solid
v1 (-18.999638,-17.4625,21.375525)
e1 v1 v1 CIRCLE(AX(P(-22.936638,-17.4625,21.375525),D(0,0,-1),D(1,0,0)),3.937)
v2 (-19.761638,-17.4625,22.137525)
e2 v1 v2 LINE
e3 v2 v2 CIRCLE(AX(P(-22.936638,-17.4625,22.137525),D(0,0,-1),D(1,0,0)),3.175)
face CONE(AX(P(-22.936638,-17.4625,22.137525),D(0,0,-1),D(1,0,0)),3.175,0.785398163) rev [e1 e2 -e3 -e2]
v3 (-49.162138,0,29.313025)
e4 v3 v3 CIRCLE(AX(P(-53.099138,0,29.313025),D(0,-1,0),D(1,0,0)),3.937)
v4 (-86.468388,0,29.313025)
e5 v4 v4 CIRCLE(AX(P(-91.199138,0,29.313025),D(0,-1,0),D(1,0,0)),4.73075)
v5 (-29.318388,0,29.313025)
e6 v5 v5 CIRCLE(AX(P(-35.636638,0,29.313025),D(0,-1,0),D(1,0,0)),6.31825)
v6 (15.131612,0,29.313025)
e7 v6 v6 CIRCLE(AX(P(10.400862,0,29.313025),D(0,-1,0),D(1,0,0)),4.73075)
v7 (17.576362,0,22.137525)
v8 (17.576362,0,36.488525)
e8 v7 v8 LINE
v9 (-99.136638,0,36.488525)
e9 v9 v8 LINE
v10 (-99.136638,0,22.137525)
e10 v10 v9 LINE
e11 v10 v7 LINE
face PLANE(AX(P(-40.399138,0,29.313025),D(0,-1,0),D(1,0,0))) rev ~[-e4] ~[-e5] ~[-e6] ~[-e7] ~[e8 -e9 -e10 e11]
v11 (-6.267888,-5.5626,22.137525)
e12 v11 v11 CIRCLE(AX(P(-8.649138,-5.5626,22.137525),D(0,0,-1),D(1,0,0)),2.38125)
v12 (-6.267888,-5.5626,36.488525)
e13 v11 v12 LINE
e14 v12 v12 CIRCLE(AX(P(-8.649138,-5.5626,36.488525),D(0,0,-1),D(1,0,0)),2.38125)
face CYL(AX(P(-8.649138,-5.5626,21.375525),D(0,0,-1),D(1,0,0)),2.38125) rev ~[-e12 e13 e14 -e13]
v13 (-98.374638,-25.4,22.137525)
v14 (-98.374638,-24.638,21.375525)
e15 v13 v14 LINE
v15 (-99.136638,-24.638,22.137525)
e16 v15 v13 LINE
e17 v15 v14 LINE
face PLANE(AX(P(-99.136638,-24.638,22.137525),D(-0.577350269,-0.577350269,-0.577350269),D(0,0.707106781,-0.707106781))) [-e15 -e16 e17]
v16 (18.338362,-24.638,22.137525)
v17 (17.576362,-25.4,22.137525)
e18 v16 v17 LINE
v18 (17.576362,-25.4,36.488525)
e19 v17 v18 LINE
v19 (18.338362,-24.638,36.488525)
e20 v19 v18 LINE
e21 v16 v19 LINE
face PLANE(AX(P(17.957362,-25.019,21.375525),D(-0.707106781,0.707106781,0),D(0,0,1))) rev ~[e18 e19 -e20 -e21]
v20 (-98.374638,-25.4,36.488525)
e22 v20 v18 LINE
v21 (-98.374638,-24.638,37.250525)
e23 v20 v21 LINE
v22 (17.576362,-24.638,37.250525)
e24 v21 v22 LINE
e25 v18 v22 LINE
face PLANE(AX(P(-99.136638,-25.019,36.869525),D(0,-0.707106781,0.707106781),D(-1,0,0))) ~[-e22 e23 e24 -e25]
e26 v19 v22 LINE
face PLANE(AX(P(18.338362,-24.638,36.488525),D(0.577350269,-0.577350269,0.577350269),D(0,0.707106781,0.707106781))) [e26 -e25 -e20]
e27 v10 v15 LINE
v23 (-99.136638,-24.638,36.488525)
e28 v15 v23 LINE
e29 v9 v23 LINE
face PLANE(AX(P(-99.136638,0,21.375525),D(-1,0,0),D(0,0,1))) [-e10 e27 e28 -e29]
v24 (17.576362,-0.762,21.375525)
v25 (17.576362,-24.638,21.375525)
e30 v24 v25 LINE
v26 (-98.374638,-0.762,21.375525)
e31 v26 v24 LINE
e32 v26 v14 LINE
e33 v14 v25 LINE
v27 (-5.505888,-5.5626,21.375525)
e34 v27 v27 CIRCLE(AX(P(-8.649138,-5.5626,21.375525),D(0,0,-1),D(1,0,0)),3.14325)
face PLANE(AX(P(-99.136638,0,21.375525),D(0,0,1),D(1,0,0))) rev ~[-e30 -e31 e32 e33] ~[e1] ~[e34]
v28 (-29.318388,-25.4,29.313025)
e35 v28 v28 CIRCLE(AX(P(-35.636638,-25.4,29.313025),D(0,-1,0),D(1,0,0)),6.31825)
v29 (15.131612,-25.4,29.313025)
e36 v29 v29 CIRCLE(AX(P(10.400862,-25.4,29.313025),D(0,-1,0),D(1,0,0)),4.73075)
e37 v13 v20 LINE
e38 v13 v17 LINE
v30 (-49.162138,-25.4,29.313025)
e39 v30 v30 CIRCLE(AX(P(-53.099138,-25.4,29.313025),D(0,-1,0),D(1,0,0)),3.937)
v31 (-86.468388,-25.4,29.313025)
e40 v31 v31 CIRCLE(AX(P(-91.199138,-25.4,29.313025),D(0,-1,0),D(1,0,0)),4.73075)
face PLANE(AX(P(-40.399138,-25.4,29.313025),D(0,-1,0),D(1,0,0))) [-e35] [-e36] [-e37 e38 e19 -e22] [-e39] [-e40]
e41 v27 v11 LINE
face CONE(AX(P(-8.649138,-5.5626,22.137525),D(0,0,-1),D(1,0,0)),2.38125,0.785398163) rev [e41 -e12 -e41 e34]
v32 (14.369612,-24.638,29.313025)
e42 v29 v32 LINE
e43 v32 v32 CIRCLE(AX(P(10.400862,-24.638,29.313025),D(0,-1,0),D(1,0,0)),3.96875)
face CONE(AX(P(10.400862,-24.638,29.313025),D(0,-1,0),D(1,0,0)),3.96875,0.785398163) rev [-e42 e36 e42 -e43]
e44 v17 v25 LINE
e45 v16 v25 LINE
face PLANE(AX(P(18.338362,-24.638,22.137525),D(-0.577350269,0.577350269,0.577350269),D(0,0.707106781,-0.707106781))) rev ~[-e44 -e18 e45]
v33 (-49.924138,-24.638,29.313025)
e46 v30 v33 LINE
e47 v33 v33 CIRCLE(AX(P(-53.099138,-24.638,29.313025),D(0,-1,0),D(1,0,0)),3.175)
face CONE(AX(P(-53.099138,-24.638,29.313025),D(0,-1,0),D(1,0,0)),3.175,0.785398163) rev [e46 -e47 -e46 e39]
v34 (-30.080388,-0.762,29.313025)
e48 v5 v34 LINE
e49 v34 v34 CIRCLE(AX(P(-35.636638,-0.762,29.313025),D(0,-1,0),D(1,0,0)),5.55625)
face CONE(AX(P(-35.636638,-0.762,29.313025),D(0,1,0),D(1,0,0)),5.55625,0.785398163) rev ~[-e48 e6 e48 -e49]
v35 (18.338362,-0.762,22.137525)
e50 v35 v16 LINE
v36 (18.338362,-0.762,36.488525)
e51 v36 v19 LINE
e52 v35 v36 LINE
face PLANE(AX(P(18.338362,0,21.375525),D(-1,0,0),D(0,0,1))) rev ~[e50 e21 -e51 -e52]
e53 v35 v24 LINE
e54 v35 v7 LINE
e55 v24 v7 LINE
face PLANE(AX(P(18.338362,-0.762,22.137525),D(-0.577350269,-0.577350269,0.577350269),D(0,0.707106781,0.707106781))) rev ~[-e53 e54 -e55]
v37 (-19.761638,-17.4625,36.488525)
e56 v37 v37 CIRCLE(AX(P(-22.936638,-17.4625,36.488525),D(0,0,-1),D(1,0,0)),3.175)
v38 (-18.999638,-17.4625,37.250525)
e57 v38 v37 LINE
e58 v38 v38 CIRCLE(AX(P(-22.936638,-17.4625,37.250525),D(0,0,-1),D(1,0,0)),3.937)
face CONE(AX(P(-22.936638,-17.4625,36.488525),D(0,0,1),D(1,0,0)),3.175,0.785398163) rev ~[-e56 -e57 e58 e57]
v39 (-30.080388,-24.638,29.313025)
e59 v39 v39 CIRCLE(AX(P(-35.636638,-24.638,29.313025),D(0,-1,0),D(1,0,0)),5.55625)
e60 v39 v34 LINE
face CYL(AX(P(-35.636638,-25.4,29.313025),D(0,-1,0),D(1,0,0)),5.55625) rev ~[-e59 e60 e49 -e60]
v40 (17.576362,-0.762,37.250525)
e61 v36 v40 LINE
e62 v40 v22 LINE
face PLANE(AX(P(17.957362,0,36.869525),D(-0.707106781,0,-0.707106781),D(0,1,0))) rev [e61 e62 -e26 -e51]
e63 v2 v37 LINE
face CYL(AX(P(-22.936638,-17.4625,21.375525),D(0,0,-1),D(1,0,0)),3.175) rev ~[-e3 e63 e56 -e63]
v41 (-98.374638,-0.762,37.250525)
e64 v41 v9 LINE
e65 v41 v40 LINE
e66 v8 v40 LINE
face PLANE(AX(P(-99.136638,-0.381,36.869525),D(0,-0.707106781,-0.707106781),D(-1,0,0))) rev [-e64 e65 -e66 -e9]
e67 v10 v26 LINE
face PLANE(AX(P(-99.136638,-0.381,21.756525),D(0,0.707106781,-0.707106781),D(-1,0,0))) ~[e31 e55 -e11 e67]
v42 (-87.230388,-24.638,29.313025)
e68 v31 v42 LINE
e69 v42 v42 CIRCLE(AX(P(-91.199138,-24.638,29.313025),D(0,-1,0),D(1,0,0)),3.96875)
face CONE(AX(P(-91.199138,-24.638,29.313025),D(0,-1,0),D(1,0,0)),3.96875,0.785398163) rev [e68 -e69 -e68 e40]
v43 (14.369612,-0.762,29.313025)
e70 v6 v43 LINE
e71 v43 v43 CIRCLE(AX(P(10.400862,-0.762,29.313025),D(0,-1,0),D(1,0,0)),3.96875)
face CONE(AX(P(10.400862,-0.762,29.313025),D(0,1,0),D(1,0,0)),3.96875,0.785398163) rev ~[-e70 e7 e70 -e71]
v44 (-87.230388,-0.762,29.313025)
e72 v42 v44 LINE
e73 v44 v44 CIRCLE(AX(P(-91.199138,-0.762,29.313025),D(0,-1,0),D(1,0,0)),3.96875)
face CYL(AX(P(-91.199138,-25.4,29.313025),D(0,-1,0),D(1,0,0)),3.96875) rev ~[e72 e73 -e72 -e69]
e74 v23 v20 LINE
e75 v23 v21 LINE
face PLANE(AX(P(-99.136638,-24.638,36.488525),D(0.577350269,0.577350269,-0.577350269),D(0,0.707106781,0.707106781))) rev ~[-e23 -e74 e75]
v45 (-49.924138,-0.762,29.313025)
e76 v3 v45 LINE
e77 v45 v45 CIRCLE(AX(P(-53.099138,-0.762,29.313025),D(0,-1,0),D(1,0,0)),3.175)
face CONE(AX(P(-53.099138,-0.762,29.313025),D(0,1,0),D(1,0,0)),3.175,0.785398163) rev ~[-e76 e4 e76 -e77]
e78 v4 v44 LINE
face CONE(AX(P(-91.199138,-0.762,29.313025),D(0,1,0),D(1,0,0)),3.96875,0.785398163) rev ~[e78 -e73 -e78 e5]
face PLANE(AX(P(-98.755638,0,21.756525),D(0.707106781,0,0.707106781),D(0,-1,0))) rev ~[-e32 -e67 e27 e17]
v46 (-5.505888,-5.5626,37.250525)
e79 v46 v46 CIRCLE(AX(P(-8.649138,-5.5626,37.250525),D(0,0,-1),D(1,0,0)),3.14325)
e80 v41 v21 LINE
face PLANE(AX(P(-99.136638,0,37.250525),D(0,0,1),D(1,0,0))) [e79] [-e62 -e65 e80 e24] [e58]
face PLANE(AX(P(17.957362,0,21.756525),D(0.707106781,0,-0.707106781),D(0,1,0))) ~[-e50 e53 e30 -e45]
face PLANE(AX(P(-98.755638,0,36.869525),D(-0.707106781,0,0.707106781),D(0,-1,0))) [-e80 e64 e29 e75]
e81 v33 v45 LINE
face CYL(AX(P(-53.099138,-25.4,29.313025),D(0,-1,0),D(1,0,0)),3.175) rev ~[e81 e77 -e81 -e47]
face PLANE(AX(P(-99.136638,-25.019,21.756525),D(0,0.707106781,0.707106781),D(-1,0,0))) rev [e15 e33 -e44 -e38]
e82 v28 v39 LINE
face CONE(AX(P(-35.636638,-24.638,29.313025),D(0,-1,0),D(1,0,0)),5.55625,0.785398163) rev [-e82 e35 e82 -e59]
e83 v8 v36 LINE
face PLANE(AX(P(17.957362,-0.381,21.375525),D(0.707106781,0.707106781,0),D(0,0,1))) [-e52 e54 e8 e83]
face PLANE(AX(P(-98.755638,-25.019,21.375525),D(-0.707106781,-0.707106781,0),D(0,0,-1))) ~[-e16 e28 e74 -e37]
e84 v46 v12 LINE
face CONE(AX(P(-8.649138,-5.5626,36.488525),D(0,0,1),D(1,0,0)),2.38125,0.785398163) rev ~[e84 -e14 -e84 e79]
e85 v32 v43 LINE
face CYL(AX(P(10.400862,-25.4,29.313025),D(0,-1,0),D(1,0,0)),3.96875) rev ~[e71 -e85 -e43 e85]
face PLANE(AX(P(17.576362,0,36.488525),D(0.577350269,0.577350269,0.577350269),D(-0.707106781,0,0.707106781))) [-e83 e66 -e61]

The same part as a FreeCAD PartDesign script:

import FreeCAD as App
import Part
import Sketcher

V = App.Vector
Q = App.Units.Quantity


def edges_at(feature, points):
    """Names of the edges that pass closest to the given points."""
    edges = feature.Shape.Edges
    near = lambda p: min(range(len(edges)), key=lambda i: edges[i].distToShape(Part.Vertex(*p))[0])
    return sorted({f"Edge{near(p) + 1}" for p in points})


def add_polygon(sketch, points):
    """Adds a closed chain of lines whose ends are joined by coincident constraints."""
    first, n = sketch.GeometryCount, len(points)
    for a, b in zip(points, points[1:] + points[:1]):
        sketch.addGeometry(Part.LineSegment(App.Vector(*a, 0), App.Vector(*b, 0)), False)
    for i in range(n):
        sketch.addConstraint(Sketcher.Constraint("Coincident", first + i, 2, first + (i + 1) % n, 1))

doc = App.newDocument("Part")
body = doc.addObject("PartDesign::Body", "Body")

sketch1 = body.newObject("Sketcher::SketchObject", "Sketch")
sketch1.AttachmentSupport = (doc.getObject("XZ_Plane"), [""])
sketch1.MapMode = "FlatFace"
add_polygon(sketch1, [(-99.136638, 37.250525), (-99.136638, 21.375525), (18.338362, 21.375525), (18.338362, 37.250525)])
sketch1.addConstraint([
    Sketcher.Constraint("Vertical", 0),
    Sketcher.Constraint("Horizontal", 1),
    Sketcher.Constraint("Vertical", 2),
    Sketcher.Constraint("Horizontal", 3),
    Sketcher.Constraint("DistanceX", 1, 1, 1, 2, Q("4.625 in")),
    Sketcher.Constraint("DistanceY", 0, 2, 0, 1, Q("0.625 in")),
    Sketcher.Constraint("DistanceX", 0, 2, -1, 1, Q("99.136638 mm")),
    Sketcher.Constraint("DistanceY", -1, 1, 0, 2, Q("21.375525 mm")),
])
pad1 = body.newObject("PartDesign::Pad", "Pad")
pad1.Profile = sketch1
pad1.Length = Q("1 in")

sketch2 = body.newObject("Sketcher::SketchObject", "Sketch001")
sketch2.AttachmentSupport = (doc.getObject("XZ_Plane"), [""])
sketch2.MapMode = "FlatFace"
sketch2.AttachmentOffset = App.Placement(V(0, 0, 1 * 25.4), App.Rotation())
sketch2.addGeometry([
    Part.Circle(V(-91.199138, 29.313025, 0), V(0, 0, 1), 3.96875),
    Part.Circle(V(-53.099138, 29.313025, 0), V(0, 0, 1), 3.175),
    Part.Circle(V(-35.636638, 29.313025, 0), V(0, 0, 1), 5.55625),
    Part.Circle(V(10.400862, 29.313025, 0), V(0, 0, 1), 3.96875),
], False)
sketch2.addConstraint([
    Sketcher.Constraint("Equal", 0, 3),
    Sketcher.Constraint("Horizontal", 0, 3, 1, 3),
    Sketcher.Constraint("Horizontal", 1, 3, 2, 3),
    Sketcher.Constraint("Horizontal", 2, 3, 3, 3),
    Sketcher.Constraint("Diameter", 1, Q("0.25 in")),
    Sketcher.Constraint("Diameter", 0, Q("0.3125 in")),
    Sketcher.Constraint("Diameter", 2, Q("0.4375 in")),
    Sketcher.Constraint("DistanceX", 0, 3, 3, 3, Q("4 in")),
    Sketcher.Constraint("DistanceX", 0, 3, 1, 3, Q("1.5 in")),
    Sketcher.Constraint("DistanceX", 1, 3, 2, 3, Q("0.6875 in")),
    Sketcher.Constraint("DistanceX", 0, 3, -1, 1, Q("91.199138 mm")),
    Sketcher.Constraint("DistanceY", -1, 1, 0, 3, Q("29.313025 mm")),
])
pocket1 = body.newObject("PartDesign::Pocket", "Pocket")
pocket1.Profile = sketch2
pocket1.Length = Q("5 in")

sketch3 = body.newObject("Sketcher::SketchObject", "Sketch002")
sketch3.AttachmentSupport = (doc.getObject("XY_Plane"), [""])
sketch3.MapMode = "FlatFace"
sketch3.AttachmentOffset = App.Placement(V(0, 0, 21.375525), App.Rotation())
sketch3.addGeometry([
    Part.Circle(V(-22.936638, -17.4625, 0), V(0, 0, 1), 3.175),
    Part.Circle(V(-8.649138, -5.5626, 0), V(0, 0, 1), 2.38125),
], False)
sketch3.addConstraint([
    Sketcher.Constraint("Diameter", 0, Q("0.25 in")),
    Sketcher.Constraint("Diameter", 1, Q("0.1875 in")),
    Sketcher.Constraint("DistanceY", 0, 3, -1, 1, Q("0.6875 in")),
    Sketcher.Constraint("DistanceY", 1, 3, -1, 1, Q("0.219 in")),
    Sketcher.Constraint("DistanceX", 0, 3, 1, 3, Q("0.5625 in")),
    Sketcher.Constraint("DistanceX", 0, 3, -1, 1, Q("22.936638 mm")),
])
pocket2 = body.newObject("PartDesign::Pocket", "Pocket001")
pocket2.Profile = sketch3
pocket2.Length = Q("1 in")
pocket2.Reversed = True
doc.recompute()

chamfer = body.newObject("PartDesign::Chamfer", "Chamfer")
chamfer.Base = (pocket2, edges_at(pocket2, [
    (-40.399, -25.4, 21.376),
    (-40.399, -25.4, 37.251),
    (18.338, -25.4, 29.313),
    (6.432, -25.4, 29.313),
    (-41.193, -25.4, 29.313),
    (-56.274, -25.4, 29.313),
    (-99.137, -25.4, 29.313),
    (-95.168, -25.4, 29.313),
    (-99.137, -12.7, 21.376),
    (-40.399, 0, 21.376),
    (-26.112, -17.462, 21.376),
    (-11.03, -5.563, 21.376),
    (18.338, -12.7, 21.376),
    (18.338, -12.7, 37.251),
    (18.338, 0, 29.313),
    (-26.112, -17.462, 37.251),
    (-11.03, -5.563, 37.251),
    (-40.399, 0, 37.251),
    (-99.137, -12.7, 37.251),
    (-41.193, 0, 29.313),
    (-56.274, 0, 29.313),
    (6.432, 0, 29.313),
    (-95.168, 0, 29.313),
]))
chamfer.ChamferType = "Two distances"
chamfer.Size = Q("0.03 in")
chamfer.Size2 = Q("0.03 in")

doc.recompute()
